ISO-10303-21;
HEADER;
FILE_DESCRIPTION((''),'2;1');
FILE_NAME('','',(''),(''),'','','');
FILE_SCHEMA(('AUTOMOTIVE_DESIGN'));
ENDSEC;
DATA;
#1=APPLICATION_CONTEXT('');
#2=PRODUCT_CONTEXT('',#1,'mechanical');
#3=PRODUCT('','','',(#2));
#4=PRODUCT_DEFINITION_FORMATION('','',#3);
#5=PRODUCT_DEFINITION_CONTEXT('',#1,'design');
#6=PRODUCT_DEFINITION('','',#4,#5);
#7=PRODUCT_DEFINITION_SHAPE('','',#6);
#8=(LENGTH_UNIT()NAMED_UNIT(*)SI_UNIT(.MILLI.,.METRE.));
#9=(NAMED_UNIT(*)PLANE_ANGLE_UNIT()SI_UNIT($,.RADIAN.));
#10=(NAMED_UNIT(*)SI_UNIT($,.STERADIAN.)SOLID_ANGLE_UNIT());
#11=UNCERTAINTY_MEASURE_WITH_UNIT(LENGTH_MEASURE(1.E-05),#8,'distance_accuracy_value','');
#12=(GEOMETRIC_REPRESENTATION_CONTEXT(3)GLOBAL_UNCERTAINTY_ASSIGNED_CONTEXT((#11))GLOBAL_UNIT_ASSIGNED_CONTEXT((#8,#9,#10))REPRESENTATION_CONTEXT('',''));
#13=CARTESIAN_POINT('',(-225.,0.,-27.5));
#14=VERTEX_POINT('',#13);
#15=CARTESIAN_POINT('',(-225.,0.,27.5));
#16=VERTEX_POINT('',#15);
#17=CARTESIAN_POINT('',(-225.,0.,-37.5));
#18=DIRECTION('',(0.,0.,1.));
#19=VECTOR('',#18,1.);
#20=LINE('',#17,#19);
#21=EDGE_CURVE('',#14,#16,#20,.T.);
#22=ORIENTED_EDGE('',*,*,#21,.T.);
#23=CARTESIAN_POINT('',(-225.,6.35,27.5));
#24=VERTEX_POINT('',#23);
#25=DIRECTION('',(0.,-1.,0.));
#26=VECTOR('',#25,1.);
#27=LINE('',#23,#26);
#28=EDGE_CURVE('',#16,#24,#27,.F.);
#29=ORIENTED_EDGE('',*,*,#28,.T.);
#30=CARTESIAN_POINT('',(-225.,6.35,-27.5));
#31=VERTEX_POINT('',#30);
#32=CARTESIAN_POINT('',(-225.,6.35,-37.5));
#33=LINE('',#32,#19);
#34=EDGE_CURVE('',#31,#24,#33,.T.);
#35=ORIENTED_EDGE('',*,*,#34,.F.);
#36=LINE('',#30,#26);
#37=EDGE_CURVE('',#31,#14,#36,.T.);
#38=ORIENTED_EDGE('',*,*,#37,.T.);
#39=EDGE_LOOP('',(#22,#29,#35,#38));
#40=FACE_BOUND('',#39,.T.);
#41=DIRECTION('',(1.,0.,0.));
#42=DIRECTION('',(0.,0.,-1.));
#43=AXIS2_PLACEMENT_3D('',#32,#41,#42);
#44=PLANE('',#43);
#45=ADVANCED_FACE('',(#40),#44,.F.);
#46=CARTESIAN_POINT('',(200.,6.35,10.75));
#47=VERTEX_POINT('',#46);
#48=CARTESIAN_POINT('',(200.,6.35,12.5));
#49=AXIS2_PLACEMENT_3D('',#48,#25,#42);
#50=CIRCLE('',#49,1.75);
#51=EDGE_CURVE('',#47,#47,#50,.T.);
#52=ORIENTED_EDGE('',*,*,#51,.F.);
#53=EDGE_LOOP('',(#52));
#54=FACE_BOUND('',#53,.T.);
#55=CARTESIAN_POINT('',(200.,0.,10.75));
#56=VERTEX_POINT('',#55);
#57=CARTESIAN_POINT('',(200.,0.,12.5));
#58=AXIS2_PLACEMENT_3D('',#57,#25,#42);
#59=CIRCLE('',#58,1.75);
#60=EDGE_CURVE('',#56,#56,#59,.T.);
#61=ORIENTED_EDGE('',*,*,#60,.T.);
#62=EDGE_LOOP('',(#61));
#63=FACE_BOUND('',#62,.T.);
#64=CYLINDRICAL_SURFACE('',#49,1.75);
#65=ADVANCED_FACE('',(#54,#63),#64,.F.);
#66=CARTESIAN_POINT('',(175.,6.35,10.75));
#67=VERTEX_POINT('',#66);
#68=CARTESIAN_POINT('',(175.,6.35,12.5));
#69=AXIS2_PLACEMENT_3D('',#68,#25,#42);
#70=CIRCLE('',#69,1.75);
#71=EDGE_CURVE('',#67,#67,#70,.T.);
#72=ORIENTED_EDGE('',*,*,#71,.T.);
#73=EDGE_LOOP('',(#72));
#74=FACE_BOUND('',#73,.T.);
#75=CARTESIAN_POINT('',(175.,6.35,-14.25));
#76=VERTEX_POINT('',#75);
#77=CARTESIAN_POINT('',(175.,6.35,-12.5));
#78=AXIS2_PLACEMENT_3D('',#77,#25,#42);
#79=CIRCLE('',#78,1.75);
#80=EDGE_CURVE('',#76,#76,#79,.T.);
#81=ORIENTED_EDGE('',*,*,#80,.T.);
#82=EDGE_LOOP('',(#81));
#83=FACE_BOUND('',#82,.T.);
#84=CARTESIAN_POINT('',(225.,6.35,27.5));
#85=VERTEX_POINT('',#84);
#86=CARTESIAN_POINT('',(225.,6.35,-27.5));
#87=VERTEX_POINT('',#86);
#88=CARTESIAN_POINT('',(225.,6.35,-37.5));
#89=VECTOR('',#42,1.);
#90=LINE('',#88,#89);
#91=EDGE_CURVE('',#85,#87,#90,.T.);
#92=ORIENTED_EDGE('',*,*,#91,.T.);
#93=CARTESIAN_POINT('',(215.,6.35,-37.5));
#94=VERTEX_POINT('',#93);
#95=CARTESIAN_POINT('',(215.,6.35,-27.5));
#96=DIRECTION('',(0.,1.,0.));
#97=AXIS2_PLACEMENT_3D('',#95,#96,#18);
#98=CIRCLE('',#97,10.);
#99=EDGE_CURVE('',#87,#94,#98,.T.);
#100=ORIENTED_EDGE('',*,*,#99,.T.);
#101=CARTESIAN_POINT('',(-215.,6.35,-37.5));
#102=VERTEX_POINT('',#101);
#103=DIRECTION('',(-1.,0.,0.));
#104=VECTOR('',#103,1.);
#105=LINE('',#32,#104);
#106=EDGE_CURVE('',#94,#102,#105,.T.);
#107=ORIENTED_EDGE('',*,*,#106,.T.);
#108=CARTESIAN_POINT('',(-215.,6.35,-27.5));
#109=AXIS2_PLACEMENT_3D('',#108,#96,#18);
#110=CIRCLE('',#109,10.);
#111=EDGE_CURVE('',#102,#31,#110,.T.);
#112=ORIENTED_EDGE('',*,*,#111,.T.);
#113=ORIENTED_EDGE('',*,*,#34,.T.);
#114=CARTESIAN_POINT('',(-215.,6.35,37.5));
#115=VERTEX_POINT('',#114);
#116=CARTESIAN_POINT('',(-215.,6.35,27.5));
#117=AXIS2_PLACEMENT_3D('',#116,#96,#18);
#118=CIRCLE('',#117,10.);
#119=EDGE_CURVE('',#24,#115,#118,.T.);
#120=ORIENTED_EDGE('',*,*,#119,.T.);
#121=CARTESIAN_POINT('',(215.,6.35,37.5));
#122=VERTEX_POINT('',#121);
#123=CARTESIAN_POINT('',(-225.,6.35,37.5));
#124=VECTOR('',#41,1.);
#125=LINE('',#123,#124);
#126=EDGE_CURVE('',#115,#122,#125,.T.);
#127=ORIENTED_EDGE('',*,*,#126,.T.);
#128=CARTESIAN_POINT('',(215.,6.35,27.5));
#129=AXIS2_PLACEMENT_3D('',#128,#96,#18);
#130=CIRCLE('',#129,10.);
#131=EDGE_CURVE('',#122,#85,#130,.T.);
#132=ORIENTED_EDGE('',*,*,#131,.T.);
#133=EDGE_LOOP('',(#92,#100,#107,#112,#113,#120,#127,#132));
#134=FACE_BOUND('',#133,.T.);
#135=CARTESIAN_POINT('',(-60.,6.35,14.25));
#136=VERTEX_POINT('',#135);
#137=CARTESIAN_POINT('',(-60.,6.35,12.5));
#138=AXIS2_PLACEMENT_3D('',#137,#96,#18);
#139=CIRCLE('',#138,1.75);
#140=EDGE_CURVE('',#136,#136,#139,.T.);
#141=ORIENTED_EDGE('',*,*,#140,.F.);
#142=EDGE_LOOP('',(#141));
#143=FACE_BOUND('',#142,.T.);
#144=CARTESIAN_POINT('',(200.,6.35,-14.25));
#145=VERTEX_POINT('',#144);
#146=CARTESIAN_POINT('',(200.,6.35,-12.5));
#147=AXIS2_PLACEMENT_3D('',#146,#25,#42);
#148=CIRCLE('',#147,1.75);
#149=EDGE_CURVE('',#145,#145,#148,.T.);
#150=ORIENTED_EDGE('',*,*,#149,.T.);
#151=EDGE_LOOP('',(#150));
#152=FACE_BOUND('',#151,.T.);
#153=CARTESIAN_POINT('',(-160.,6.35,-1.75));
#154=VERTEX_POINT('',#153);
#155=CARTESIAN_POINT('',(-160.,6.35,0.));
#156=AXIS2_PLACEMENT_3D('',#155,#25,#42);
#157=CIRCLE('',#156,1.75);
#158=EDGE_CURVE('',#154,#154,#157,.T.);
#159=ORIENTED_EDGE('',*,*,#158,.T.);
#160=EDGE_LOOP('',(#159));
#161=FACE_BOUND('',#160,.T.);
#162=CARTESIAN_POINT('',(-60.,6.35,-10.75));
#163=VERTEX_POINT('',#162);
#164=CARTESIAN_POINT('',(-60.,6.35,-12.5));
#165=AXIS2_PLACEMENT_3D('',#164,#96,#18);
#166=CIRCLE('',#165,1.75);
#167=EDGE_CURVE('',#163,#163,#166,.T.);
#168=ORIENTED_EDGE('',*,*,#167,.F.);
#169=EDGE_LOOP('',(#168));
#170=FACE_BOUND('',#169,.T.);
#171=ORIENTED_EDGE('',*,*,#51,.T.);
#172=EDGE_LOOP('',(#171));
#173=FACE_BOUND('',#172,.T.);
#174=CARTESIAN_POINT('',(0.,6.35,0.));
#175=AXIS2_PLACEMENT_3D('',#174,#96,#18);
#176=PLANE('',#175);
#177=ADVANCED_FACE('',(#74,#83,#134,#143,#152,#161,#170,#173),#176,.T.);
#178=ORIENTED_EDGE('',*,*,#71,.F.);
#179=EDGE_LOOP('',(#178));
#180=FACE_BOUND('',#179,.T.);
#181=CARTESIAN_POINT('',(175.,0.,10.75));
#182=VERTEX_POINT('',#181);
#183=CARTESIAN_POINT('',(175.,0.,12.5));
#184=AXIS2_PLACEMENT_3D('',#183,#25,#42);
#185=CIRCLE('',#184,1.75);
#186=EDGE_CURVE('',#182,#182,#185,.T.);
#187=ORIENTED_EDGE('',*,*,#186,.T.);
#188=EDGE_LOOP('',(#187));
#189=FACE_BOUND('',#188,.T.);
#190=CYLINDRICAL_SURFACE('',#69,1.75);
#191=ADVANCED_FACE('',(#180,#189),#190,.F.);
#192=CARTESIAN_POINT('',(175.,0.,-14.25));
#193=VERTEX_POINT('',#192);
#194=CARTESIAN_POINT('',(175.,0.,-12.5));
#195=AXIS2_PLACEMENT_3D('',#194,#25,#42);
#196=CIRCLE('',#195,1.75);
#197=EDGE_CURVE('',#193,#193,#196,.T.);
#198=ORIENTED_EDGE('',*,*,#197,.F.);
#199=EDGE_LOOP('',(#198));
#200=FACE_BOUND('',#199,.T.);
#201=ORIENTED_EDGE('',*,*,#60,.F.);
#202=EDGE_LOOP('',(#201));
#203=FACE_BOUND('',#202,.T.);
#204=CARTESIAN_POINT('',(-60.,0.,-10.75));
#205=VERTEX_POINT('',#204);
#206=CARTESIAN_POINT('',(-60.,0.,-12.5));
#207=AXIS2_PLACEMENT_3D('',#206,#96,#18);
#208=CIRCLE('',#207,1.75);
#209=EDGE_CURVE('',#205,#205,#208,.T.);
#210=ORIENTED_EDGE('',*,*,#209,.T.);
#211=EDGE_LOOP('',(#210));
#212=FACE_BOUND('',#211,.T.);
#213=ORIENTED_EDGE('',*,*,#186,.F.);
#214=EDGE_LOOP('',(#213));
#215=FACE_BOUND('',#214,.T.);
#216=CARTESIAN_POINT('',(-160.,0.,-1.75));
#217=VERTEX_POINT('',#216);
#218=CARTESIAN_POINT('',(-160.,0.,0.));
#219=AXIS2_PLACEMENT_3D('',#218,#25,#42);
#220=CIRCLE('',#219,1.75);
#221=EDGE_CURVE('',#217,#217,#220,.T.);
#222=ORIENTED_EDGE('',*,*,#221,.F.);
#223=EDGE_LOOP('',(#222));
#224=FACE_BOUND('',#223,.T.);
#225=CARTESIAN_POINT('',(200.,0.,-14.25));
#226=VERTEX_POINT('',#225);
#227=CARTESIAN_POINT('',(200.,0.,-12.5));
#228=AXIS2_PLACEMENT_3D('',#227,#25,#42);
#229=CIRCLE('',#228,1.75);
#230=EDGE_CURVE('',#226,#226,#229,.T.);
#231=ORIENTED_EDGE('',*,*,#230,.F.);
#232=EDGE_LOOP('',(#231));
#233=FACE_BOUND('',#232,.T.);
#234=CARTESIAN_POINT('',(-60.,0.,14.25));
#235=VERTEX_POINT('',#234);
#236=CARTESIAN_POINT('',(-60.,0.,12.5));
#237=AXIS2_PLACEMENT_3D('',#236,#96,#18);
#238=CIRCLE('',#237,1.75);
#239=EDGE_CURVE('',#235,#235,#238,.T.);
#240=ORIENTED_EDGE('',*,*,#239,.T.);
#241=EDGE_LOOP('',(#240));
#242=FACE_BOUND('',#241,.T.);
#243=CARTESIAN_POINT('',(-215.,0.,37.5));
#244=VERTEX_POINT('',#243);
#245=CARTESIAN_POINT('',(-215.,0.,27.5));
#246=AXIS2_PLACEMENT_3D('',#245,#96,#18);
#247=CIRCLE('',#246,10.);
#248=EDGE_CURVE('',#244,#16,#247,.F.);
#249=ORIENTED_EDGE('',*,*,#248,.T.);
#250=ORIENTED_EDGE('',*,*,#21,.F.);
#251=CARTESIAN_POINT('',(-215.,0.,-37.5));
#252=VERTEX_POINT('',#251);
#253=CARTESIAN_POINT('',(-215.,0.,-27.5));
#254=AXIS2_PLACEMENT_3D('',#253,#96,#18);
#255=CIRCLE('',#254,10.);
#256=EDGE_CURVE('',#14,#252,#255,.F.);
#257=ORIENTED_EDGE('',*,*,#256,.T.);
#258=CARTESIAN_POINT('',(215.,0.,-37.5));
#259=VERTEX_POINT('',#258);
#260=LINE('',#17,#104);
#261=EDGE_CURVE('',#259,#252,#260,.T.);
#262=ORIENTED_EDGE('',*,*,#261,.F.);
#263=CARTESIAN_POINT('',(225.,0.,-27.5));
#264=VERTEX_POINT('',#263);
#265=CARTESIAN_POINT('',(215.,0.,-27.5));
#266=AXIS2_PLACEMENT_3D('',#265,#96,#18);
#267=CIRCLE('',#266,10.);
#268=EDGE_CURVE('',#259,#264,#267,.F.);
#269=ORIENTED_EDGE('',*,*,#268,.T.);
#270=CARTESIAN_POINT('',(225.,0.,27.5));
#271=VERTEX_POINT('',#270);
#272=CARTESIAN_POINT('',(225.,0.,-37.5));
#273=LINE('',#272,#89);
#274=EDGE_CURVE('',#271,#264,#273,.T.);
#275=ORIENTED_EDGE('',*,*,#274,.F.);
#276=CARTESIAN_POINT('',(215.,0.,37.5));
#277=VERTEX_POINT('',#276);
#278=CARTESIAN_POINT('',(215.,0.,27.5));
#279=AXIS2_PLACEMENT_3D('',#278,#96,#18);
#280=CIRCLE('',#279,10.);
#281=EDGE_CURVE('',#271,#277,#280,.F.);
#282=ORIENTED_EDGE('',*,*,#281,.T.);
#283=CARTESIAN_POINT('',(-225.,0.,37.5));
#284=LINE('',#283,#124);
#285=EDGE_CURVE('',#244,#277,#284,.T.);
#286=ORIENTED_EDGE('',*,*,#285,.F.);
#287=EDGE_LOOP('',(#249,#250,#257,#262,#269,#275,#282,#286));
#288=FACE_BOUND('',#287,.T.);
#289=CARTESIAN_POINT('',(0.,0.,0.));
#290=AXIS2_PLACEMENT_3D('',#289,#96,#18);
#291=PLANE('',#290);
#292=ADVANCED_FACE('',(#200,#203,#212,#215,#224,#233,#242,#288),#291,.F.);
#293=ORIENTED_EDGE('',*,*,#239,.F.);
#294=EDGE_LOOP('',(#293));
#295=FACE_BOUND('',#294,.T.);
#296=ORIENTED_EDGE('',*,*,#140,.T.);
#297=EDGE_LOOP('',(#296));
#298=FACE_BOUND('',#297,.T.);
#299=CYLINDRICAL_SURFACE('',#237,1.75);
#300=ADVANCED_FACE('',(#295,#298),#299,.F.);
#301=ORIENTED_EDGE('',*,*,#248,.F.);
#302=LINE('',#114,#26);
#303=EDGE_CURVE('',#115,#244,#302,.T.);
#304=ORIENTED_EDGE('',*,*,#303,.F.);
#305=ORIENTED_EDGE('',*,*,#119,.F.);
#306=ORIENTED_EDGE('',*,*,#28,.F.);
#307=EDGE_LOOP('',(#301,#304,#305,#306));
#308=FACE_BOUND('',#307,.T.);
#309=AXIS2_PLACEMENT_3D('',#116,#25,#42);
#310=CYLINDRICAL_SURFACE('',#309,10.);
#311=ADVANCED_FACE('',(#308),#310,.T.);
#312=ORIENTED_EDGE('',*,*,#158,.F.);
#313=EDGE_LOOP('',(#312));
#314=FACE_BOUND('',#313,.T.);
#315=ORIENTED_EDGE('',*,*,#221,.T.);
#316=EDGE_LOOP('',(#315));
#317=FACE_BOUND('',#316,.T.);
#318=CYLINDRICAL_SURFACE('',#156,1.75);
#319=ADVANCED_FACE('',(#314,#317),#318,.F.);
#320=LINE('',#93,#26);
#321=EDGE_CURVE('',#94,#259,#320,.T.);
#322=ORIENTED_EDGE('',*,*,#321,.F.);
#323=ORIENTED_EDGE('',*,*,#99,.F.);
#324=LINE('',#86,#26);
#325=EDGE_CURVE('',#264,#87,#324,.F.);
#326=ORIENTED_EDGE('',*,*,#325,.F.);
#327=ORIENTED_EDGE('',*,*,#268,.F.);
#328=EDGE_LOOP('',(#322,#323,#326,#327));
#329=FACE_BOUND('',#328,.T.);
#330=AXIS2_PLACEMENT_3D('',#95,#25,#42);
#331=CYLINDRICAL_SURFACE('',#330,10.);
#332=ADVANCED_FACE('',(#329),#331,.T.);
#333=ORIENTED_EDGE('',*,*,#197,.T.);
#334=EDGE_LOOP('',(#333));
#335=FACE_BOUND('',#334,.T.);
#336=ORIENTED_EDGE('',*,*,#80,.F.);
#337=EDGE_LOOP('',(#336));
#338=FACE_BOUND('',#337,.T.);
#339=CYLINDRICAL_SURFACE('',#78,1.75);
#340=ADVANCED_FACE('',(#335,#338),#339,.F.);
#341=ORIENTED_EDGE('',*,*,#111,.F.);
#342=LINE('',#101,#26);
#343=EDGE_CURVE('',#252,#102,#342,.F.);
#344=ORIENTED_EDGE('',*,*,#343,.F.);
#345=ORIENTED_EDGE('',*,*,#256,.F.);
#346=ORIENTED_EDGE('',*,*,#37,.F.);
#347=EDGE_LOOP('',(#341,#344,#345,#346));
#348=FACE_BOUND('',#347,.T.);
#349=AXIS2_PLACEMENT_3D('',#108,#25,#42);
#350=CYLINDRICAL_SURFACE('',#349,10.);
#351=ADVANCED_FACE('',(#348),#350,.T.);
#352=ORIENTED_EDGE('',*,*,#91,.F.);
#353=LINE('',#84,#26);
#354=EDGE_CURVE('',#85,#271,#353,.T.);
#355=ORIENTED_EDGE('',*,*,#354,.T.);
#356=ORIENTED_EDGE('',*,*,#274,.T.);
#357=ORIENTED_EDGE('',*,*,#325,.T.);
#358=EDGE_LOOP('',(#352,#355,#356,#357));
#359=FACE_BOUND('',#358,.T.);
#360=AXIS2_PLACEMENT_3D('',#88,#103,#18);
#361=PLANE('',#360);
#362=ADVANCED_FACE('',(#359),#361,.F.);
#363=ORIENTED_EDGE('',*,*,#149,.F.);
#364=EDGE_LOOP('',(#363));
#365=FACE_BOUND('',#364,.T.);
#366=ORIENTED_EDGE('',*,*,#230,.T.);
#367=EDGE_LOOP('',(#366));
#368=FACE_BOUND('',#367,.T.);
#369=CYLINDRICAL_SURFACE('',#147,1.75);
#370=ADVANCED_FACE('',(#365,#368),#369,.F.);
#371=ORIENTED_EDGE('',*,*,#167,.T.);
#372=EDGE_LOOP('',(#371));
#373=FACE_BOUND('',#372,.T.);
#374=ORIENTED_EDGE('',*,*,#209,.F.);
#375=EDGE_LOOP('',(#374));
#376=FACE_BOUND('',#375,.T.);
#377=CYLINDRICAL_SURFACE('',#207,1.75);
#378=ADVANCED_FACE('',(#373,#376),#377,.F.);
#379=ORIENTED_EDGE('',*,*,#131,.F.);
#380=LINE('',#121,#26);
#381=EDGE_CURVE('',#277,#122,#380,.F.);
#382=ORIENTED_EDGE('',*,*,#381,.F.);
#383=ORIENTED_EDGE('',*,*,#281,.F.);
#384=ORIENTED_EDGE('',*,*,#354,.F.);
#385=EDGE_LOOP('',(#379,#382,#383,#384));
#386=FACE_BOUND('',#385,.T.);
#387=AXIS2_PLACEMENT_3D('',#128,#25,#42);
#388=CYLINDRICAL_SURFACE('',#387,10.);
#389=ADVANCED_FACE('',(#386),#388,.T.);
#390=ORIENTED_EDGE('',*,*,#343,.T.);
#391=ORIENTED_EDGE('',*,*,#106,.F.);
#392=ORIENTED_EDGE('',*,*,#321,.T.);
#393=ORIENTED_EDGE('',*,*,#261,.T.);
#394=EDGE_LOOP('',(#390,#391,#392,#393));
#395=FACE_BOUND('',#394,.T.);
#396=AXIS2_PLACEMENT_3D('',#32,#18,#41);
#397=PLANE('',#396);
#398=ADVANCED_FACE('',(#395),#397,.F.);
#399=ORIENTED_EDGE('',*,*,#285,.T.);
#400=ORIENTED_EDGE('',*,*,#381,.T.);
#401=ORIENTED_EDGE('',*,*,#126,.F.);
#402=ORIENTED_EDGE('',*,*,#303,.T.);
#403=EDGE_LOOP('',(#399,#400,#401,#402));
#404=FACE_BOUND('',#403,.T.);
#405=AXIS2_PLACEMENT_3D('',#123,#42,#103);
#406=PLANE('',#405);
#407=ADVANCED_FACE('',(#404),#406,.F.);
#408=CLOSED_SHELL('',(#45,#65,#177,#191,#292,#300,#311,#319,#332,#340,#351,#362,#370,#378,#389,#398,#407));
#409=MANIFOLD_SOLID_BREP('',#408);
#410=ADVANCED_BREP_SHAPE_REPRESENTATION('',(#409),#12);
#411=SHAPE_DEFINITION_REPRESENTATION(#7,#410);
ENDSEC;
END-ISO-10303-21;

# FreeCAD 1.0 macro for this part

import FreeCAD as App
import Part
import Sketcher
Q = App.Units.Quantity


def edges_at(feature, points):
    """Names of the edges that pass closest to the given points."""
    edges = feature.Shape.Edges
    near = lambda p: min(range(len(edges)), key=lambda i: edges[i].distToShape(Part.Vertex(*p))[0])
    return sorted({f"Edge{near(p) + 1}" for p in points})


def add_polygon(sketch, points):
    """Adds a closed chain of lines whose ends are joined by coincident constraints."""
    first, n = sketch.GeometryCount, len(points)
    for a, b in zip(points, points[1:] + points[:1]):
        sketch.addGeometry(Part.LineSegment(App.Vector(*a, 0), App.Vector(*b, 0)), False)
    for i in range(n):
        sketch.addConstraint(Sketcher.Constraint("Coincident", first + i, 2, first + (i + 1) % n, 1))

doc = App.newDocument("Part")
body = doc.addObject("PartDesign::Body", "Body")

sketch1 = doc.addObject("Sketcher::SketchObject", "Sketch")
body.addObject(sketch1)
sketch1.AttachmentSupport = (doc.XZ_Plane, [""])
sketch1.MapMode = "FlatFace"
add_polygon(sketch1, [(-225, -37.5), (-225, 37.5), (225, 37.5), (225, -37.5)])
sketch1.addConstraint([
    Sketcher.Constraint("Vertical", 0),
    Sketcher.Constraint("Horizontal", 1),
    Sketcher.Constraint("Vertical", 2),
    Sketcher.Constraint("Horizontal", 3),
    Sketcher.Constraint("Symmetric", 0, 2, 2, 2, -1, 1),
    Sketcher.Constraint("DistanceX", 1, 1, 1, 2, Q("450 mm")),
    Sketcher.Constraint("DistanceY", 0, 1, 0, 2, Q("75 mm")),
])
pad1 = doc.addObject("PartDesign::Pad", "Pad")
body.addObject(pad1)
pad1.Profile = sketch1
pad1.Length = 6.35
pad1.Reversed = True

sketch2 = doc.addObject("Sketcher::SketchObject", "Sketch001")
body.addObject(sketch2)
sketch2.AttachmentSupport = (doc.XZ_Plane, [""])
sketch2.MapMode = "FlatFace"
sketch2.addGeometry(Part.Circle(App.Vector(175, -12.5, 0), App.Vector(0, 0, 1), 1.75), False)
sketch2.addConstraint([
    Sketcher.Constraint("Diameter", 0, Q("3.5 mm")),
    Sketcher.Constraint("DistanceX", -1, 1, 0, 3, Q("175 mm")),
    Sketcher.Constraint("DistanceY", 0, 3, -1, 1, Q("12.5 mm")),
])
pocket1 = doc.addObject("PartDesign::Pocket", "Pocket")
body.addObject(pocket1)
pocket1.Profile = sketch2
pocket1.Type = "ThroughAll"
doc.recompute()

linearpattern = doc.addObject("PartDesign::LinearPattern", "LinearPattern")
body.addObject(linearpattern)
linearpattern.Originals = [pocket1]
linearpattern.Direction = (doc.X_Axis, [""])
linearpattern.Mode = "offset"
linearpattern.Offset = 25
linearpattern.Occurrences = 2
body.Tip = linearpattern
doc.recompute()

linearpattern2 = doc.addObject("PartDesign::LinearPattern", "LinearPattern001")
body.addObject(linearpattern2)
linearpattern2.Originals = [pocket1]
linearpattern2.Direction = (doc.Z_Axis, [""])
linearpattern2.Mode = "offset"
linearpattern2.Offset = 25
linearpattern2.Occurrences = 2
body.Tip = linearpattern2

sketch3 = doc.addObject("Sketcher::SketchObject", "Sketch002")
body.addObject(sketch3)
sketch3.AttachmentSupport = (doc.XZ_Plane, [""])
sketch3.MapMode = "FlatFace"
sketch3.addGeometry(Part.Circle(App.Vector(200, 12.5, 0), App.Vector(0, 0, 1), 1.75), False)
sketch3.addConstraint([
    Sketcher.Constraint("Diameter", 0, Q("3.5 mm")),
    Sketcher.Constraint("DistanceX", -1, 1, 0, 3, Q("200 mm")),
    Sketcher.Constraint("DistanceY", -1, 1, 0, 3, Q("12.5 mm")),
])
pocket2 = doc.addObject("PartDesign::Pocket", "Pocket001")
body.addObject(pocket2)
pocket2.Profile = sketch3
pocket2.Type = "ThroughAll"

sketch4 = doc.addObject("Sketcher::SketchObject", "Sketch003")
body.addObject(sketch4)
sketch4.AttachmentSupport = (doc.XZ_Plane, [""])
sketch4.MapMode = "FlatFace"
sketch4.addGeometry(Part.Circle(App.Vector(-160, 0, 0), App.Vector(0, 0, 1), 1.75), False)
sketch4.addConstraint([
    Sketcher.Constraint("PointOnObject", 0, 3, -1),
    Sketcher.Constraint("Diameter", 0, Q("3.5 mm")),
    Sketcher.Constraint("DistanceX", 0, 3, -1, 1, Q("160 mm")),
])
pocket3 = doc.addObject("PartDesign::Pocket", "Pocket002")
body.addObject(pocket3)
pocket3.Profile = sketch4
pocket3.Type = "ThroughAll"
doc.recompute()

fillet = doc.addObject("PartDesign::Fillet", "Fillet")
body.addObject(fillet)
fillet.Base = (pocket3, edges_at(pocket3, [
    (225, 3.175, 37.5),
    (-225, 3.175, 37.5),
    (-225, 3.175, -37.5),
    (225, 3.175, -37.5),
]))
fillet.Radius = 10

sketch5 = doc.addObject("Sketcher::SketchObject", "Sketch004")
body.addObject(sketch5)
sketch5.AttachmentSupport = (doc.XZ_Plane, [""])
sketch5.MapMode = "FlatFace"
sketch5.AttachmentOffset = App.Placement(App.Vector(0, 0, -6.35), App.Rotation())
sketch5.addGeometry([
    Part.Circle(App.Vector(-60, -12.5, 0), App.Vector(0, 0, 1), 1.75),
    Part.Circle(App.Vector(-60, 12.5, 0), App.Vector(0, 0, 1), 1.75),
], False)
sketch5.addConstraint([
    Sketcher.Constraint("Equal", 0, 1),
    Sketcher.Constraint("Symmetric", 0, 3, 1, 3, -1),
    Sketcher.Constraint("Diameter", 0, Q("3.5 mm")),
    Sketcher.Constraint("DistanceX", 0, 3, -1, 1, Q("60 mm")),
    Sketcher.Constraint("DistanceY", 0, 3, 1, 3, Q("25 mm")),
])
pocket4 = doc.addObject("PartDesign::Pocket", "Pocket003")
body.addObject(pocket4)
pocket4.Profile = sketch5
pocket4.Type = "ThroughAll"
pocket4.Reversed = True

doc.recompute()
